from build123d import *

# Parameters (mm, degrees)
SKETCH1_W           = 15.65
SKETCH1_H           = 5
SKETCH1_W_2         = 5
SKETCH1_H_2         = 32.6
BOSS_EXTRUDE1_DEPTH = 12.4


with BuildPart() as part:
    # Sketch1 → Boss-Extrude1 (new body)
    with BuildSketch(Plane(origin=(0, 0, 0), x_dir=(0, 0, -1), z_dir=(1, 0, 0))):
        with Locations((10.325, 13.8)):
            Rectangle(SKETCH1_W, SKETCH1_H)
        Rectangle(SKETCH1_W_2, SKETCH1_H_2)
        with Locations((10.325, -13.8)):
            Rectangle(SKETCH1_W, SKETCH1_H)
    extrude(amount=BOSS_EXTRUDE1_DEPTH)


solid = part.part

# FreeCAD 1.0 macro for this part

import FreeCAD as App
import Part
import Sketcher
Q = App.Units.Quantity


def add_polygon(sketch, points):
    """Adds a closed chain of lines whose ends are joined by coincident constraints."""
    first, n = sketch.GeometryCount, len(points)
    for a, b in zip(points, points[1:] + points[:1]):
        sketch.addGeometry(Part.LineSegment(App.Vector(*a, 0), App.Vector(*b, 0)), False)
    for i in range(n):
        sketch.addConstraint(Sketcher.Constraint("Coincident", first + i, 2, first + (i + 1) % n, 1))

doc = App.newDocument("Part")
body = doc.addObject("PartDesign::Body", "Body")

# Sketch on YZ plane
sketch1 = body.newObject("Sketcher::SketchObject", "Sketch")
sketch1.AttachmentSupport = (doc.getObject("YZ_Plane"), [""])
sketch1.MapMode = "FlatFace"
add_polygon(sketch1, [(11, -2), (11, -18), (16, -18), (16, 2), (-16, 2), (-16, -18), (-11, -18), (-11, -2)])  # lines 0-7
sketch1.addConstraint([
    Sketcher.Constraint("Vertical", 0),
    Sketcher.Constraint("Horizontal", 1),
    Sketcher.Constraint("Vertical", 2),
    Sketcher.Constraint("Horizontal", 3),
    Sketcher.Constraint("Vertical", 4),
    Sketcher.Constraint("Horizontal", 5),
    Sketcher.Constraint("Vertical", 6),
    Sketcher.Constraint("Horizontal", 7),
    Sketcher.Constraint("Symmetric", 1, 2, 4, 2, -2),
    Sketcher.Constraint("Equal", 1, 5),
    Sketcher.Constraint("DistanceX", 1, 1, 1, 2, Q("5 mm")),
    Sketcher.Constraint("DistanceX", 3, 2, 3, 1, Q("32.6 mm")),
    Sketcher.Constraint("DistanceY", 6, 2, 3, 2, Q("5 mm")),
    Sketcher.Constraint("DistanceY", 0, 2, 0, 1, Q("15.65 mm")),
    Sketcher.Constraint("DistanceY", -1, 1, 2, 2, Q("2.5 mm")),
])
pad1 = body.newObject("PartDesign::Pad", "Pad")
pad1.Profile = sketch1
pad1.Length = 12.4

doc.recompute()
